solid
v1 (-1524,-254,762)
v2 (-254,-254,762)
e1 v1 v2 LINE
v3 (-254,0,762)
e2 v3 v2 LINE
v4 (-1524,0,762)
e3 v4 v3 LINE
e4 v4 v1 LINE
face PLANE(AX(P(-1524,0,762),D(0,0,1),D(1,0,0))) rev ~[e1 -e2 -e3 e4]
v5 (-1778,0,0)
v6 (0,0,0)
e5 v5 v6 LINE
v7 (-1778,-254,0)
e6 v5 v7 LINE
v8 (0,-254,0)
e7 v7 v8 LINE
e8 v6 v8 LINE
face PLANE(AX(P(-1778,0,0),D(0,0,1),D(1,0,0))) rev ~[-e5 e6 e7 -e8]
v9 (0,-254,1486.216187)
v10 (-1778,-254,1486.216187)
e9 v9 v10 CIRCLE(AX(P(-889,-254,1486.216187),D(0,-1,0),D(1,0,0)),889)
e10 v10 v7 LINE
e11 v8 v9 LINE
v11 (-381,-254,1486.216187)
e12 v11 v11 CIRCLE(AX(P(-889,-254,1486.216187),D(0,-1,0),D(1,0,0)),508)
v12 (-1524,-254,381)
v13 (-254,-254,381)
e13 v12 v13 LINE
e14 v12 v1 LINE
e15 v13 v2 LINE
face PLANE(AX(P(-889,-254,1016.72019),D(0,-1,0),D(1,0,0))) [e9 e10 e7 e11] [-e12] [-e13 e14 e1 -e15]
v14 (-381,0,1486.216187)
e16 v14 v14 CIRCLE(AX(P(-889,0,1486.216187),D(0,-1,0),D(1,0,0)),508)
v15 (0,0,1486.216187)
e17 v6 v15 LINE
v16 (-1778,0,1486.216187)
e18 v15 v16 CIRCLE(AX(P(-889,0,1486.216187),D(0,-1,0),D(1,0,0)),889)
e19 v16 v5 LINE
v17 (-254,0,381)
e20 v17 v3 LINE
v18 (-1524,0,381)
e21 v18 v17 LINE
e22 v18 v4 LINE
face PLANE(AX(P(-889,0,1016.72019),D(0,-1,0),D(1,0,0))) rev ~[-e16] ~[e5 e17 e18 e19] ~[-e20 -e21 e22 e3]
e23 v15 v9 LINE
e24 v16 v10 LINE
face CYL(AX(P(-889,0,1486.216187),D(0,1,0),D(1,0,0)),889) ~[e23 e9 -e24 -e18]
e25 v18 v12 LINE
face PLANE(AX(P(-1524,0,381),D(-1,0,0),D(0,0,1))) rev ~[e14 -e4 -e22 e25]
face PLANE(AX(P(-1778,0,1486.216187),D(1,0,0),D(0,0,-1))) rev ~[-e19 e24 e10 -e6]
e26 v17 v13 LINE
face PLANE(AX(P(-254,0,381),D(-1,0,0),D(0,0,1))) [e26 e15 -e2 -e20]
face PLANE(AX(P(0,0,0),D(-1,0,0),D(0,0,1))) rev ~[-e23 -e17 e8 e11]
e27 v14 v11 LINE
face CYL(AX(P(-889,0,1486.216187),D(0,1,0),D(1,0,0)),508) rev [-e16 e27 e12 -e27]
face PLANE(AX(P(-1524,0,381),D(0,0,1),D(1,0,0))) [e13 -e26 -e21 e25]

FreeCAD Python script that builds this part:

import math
import FreeCAD as App
import Part
import Sketcher
from FreeCAD import Vector
Q = App.Units.Quantity


def add_polygon(sketch, points):
    """Adds a closed chain of lines whose ends are joined by coincident constraints."""
    first, n = sketch.GeometryCount, len(points)
    for a, b in zip(points, points[1:] + points[:1]):
        sketch.addGeometry(Part.LineSegment(App.Vector(*a, 0), App.Vector(*b, 0)), False)
    for i in range(n):
        sketch.addConstraint(Sketcher.Constraint("Coincident", first + i, 2, first + (i + 1) % n, 1))

doc = App.newDocument("Part")
body = doc.addObject("PartDesign::Body", "Body")

# Sketch on XZ plane
sketch1 = body.newObject("Sketcher::SketchObject", "Sketch")
sketch1.AttachmentSupport = (doc.getObject("XZ_Plane"), [""])
sketch1.MapMode = "FlatFace"
sketch1.addGeometry(Part.LineSegment(Vector(-1778, 0, 0), Vector(0, 0, 0)), False)  # 0
sketch1.addGeometry(Part.LineSegment(Vector(0, 0, 0), Vector(0, 1486.216187, 0)), False)  # 1
sketch1.addGeometry(Part.ArcOfCircle(Part.Circle(Vector(-889, 1486.216187, 0), Vector(0, 0, 1), 889), math.radians(0), math.radians(180)), False)  # 2
sketch1.addGeometry(Part.LineSegment(Vector(-1778, 1486.216187, 0), Vector(-1778, 0, 0)), False)  # 3
add_polygon(sketch1, [(-254, 381), (-1524, 381), (-1524, 762), (-254, 762)])  # lines 4-7
sketch1.addGeometry(Part.Circle(Vector(-889, 1486.216187, 0), Vector(0, 0, 1), 508), False)  # 8
sketch1.addConstraint([
    Sketcher.Constraint("Coincident", 0, 2, 1, 1),
    Sketcher.Constraint("Coincident", 1, 2, 2, 1),
    Sketcher.Constraint("Coincident", 2, 2, 3, 1),
    Sketcher.Constraint("Coincident", 3, 2, 0, 1),
    Sketcher.Constraint("Horizontal", 0),
    Sketcher.Constraint("Vertical", 1),
    Sketcher.Constraint("Vertical", 3),
    Sketcher.Constraint("Horizontal", 4),
    Sketcher.Constraint("Vertical", 5),
    Sketcher.Constraint("Horizontal", 6),
    Sketcher.Constraint("Vertical", 7),
    Sketcher.Constraint("Coincident", 0, 2, -1, 1),
    Sketcher.Constraint("Coincident", 8, 3, 2, 3),
    Sketcher.Constraint("Horizontal", 8, 3, 1, 2),
    Sketcher.Constraint("Equal", 1, 3),
    Sketcher.Constraint("Diameter", 8, Q("40 in")),
    Sketcher.Constraint("Radius", 2, Q("35 in")),
    Sketcher.Constraint("DistanceX", 4, 2, 4, 1, Q("50 in")),
    Sketcher.Constraint("DistanceY", 5, 1, 5, 2, Q("15 in")),
    Sketcher.Constraint("DistanceX", 4, 2, -1, 1, Q("60 in")),
    Sketcher.Constraint("DistanceY", -1, 1, 4, 2, Q("15 in")),
    Sketcher.Constraint("DistanceY", 1, 1, 1, 2, 1486.216187),
])
pad1 = body.newObject("PartDesign::Pad", "Pad")
pad1.Profile = sketch1
pad1.Length = Q("10 in")

doc.recompute()
